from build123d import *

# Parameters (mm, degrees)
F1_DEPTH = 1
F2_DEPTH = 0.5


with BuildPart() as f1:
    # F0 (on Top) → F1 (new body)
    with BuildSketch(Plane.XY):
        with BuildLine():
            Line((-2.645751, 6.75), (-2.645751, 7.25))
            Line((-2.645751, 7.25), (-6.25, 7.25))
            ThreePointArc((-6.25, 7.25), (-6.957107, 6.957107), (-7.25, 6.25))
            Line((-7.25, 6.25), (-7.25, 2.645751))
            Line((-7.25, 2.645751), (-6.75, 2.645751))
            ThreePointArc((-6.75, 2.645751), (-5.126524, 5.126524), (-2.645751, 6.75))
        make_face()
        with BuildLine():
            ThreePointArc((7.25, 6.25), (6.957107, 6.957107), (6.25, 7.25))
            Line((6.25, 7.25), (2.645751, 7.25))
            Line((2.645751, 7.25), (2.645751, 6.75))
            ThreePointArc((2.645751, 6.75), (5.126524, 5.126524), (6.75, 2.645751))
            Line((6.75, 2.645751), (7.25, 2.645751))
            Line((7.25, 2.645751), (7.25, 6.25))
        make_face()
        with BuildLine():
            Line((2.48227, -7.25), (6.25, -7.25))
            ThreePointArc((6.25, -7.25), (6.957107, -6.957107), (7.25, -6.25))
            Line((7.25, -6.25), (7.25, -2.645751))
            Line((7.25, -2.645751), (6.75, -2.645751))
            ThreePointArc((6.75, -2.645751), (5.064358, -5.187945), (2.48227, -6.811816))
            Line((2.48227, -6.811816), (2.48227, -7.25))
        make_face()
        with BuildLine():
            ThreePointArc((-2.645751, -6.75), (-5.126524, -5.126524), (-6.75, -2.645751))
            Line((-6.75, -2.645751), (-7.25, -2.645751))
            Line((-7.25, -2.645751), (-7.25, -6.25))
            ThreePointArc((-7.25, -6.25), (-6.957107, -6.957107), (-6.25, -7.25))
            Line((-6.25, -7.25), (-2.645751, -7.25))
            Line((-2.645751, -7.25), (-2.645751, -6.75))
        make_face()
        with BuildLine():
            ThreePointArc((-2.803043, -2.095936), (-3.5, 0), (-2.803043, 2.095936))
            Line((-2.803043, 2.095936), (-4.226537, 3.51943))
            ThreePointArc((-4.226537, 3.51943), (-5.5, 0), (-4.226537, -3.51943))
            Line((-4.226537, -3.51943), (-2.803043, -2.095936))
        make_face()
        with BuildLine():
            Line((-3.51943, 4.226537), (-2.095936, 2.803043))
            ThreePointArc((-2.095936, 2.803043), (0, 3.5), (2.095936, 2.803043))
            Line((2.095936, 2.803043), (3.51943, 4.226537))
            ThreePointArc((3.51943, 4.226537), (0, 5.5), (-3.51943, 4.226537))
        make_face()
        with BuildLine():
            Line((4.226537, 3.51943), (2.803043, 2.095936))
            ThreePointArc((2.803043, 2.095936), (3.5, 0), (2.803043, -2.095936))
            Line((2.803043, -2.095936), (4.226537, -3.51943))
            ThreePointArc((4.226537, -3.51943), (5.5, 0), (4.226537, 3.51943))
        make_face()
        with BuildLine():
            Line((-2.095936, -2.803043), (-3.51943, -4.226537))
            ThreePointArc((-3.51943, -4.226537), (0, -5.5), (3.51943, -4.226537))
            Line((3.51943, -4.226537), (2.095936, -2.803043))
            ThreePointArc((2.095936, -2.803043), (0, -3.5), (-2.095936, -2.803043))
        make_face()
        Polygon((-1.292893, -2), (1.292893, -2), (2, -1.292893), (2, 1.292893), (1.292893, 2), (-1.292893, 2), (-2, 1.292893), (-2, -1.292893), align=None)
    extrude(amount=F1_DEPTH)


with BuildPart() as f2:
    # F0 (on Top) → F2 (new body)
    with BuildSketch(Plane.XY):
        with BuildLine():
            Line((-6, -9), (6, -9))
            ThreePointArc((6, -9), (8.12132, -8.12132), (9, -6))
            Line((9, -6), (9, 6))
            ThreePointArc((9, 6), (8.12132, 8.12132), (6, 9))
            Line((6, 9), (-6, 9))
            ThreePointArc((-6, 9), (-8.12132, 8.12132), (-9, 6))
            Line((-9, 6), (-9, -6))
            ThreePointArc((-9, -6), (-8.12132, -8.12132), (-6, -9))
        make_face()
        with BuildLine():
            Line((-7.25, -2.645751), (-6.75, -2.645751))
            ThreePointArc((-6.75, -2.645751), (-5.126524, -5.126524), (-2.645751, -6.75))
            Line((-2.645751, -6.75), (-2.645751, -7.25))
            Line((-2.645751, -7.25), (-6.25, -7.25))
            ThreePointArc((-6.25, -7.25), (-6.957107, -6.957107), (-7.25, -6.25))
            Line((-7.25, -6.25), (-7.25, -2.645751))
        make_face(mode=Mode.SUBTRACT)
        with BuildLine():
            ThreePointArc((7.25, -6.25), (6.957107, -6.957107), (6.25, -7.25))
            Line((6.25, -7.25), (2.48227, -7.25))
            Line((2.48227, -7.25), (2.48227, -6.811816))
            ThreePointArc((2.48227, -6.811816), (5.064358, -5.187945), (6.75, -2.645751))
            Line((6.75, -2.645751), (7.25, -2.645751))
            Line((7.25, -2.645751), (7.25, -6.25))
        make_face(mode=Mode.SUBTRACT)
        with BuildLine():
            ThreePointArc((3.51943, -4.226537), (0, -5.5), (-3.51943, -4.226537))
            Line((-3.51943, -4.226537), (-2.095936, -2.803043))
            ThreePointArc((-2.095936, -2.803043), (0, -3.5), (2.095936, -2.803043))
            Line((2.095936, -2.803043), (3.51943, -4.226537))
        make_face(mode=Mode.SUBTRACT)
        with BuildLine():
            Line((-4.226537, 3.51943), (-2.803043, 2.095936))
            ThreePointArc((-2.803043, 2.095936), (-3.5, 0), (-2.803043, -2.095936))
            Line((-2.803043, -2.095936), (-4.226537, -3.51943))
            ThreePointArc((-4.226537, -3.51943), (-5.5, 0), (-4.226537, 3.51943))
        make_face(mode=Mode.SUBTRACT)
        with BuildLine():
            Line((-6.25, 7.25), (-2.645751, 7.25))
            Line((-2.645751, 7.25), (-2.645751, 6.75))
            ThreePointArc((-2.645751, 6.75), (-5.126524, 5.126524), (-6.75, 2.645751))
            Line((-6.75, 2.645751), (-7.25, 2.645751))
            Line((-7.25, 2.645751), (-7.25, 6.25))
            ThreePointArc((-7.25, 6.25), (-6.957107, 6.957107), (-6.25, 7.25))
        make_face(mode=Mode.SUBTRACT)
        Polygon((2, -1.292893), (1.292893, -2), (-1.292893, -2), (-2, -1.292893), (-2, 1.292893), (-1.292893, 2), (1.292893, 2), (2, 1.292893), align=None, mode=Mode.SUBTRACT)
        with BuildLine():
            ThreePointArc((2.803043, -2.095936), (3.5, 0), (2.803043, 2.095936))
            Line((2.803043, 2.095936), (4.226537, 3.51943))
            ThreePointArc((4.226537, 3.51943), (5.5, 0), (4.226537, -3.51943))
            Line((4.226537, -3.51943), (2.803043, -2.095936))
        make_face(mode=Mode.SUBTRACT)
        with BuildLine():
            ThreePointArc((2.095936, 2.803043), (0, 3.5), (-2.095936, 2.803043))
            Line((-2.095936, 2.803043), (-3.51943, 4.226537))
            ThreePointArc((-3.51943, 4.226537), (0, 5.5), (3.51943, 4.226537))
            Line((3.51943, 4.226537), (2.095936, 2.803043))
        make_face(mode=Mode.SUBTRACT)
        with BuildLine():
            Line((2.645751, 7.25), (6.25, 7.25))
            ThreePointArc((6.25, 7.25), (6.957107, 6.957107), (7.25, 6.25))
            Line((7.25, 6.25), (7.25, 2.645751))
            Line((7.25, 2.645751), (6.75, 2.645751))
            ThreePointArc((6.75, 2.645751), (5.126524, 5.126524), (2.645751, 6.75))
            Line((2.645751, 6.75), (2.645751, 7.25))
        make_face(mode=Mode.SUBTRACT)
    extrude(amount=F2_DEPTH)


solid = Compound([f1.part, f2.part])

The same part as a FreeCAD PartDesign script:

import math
import FreeCAD as App
import Part
import Sketcher
from FreeCAD import Vector
Q = App.Units.Quantity

doc = App.newDocument("Part")
body = doc.addObject("PartDesign::Body", "Body")
body.AllowCompound = True

sketch1 = body.newObject("Sketcher::SketchObject", "Sketch")
sketch1.AttachmentSupport = (doc.getObject("XY_Plane"), [""])
sketch1.MapMode = "FlatFace"
sketch1.addGeometry([
    Part.LineSegment(Vector(-2.65, 6.75, 0), Vector(-2.65, 7.25, 0)),
    Part.LineSegment(Vector(-2.65, 7.25, 0), Vector(-6.25, 7.25, 0)),
    Part.ArcOfCircle(Part.Circle(Vector(-6.25, 6.25, 0), Vector(0, 0, 1), 1), math.radians(90), math.radians(180)),
    Part.LineSegment(Vector(-7.25, 6.25, 0), Vector(-7.25, 2.65, 0)),
    Part.LineSegment(Vector(-7.25, 2.65, 0), Vector(-6.75, 2.65, 0)),
    Part.ArcOfCircle(Part.Circle(Vector(0, 0, 0), Vector(0, 0, 1), 7.25), math.radians(111), math.radians(159)),
    Part.ArcOfCircle(Part.Circle(Vector(6.25, 6.25, 0), Vector(0, 0, 1), 1), math.radians(0), math.radians(90)),
    Part.LineSegment(Vector(6.25, 7.25, 0), Vector(2.65, 7.25, 0)),
    Part.LineSegment(Vector(2.65, 7.25, 0), Vector(2.65, 6.75, 0)),
    Part.ArcOfCircle(Part.Circle(Vector(0, 0, 0), Vector(0, 0, 1), 7.25), math.radians(21), math.radians(69)),
    Part.LineSegment(Vector(6.75, 2.65, 0), Vector(7.25, 2.65, 0)),
    Part.LineSegment(Vector(7.25, 2.65, 0), Vector(7.25, 6.25, 0)),
    Part.LineSegment(Vector(2.48, -7.25, 0), Vector(6.25, -7.25, 0)),
    Part.ArcOfCircle(Part.Circle(Vector(6.25, -6.25, 0), Vector(0, 0, 1), 1), math.radians(-90), math.radians(0)),
    Part.LineSegment(Vector(7.25, -6.25, 0), Vector(7.25, -2.65, 0)),
    Part.LineSegment(Vector(7.25, -2.65, 0), Vector(6.75, -2.65, 0)),
    Part.ArcOfCircle(Part.Circle(Vector(0, 0, 0), Vector(0, 0, 1), 7.25), math.radians(-70), math.radians(-21)),
    Part.LineSegment(Vector(2.48, -6.81, 0), Vector(2.48, -7.25, 0)),
    Part.ArcOfCircle(Part.Circle(Vector(0, 0, 0), Vector(0, 0, 1), 7.25), math.radians(-159), math.radians(-111)),
    Part.LineSegment(Vector(-6.75, -2.65, 0), Vector(-7.25, -2.65, 0)),
    Part.LineSegment(Vector(-7.25, -2.65, 0), Vector(-7.25, -6.25, 0)),
    Part.ArcOfCircle(Part.Circle(Vector(-6.25, -6.25, 0), Vector(0, 0, 1), 1), math.radians(180), math.radians(270)),
    Part.LineSegment(Vector(-6.25, -7.25, 0), Vector(-2.65, -7.25, 0)),
    Part.LineSegment(Vector(-2.65, -7.25, 0), Vector(-2.65, -6.75, 0)),
    Part.ArcOfCircle(Part.Circle(Vector(0, 0, 0), Vector(0, 0, 1), 3.5), math.radians(143), math.radians(217)),
    Part.LineSegment(Vector(-2.8, 2.1, 0), Vector(-4.23, 3.52, 0)),
    Part.ArcOfCircle(Part.Circle(Vector(0, 0, 0), Vector(0, 0, 1), 5.5), math.radians(140), math.radians(220)),
    Part.LineSegment(Vector(-4.23, -3.52, 0), Vector(-2.8, -2.1, 0)),
    Part.LineSegment(Vector(-3.52, 4.23, 0), Vector(-2.1, 2.8, 0)),
    Part.ArcOfCircle(Part.Circle(Vector(0, 0, 0), Vector(0, 0, 1), 3.5), math.radians(53), math.radians(127)),
    Part.LineSegment(Vector(2.1, 2.8, 0), Vector(3.52, 4.23, 0)),
    Part.ArcOfCircle(Part.Circle(Vector(0, 0, 0), Vector(0, 0, 1), 5.5), math.radians(50), math.radians(130)),
    Part.LineSegment(Vector(4.23, 3.52, 0), Vector(2.8, 2.1, 0)),
    Part.ArcOfCircle(Part.Circle(Vector(0, 0, 0), Vector(0, 0, 1), 3.5), math.radians(-37), math.radians(37)),
    Part.LineSegment(Vector(2.8, -2.1, 0), Vector(4.23, -3.52, 0)),
    Part.ArcOfCircle(Part.Circle(Vector(0, 0, 0), Vector(0, 0, 1), 5.5), math.radians(-40), math.radians(40)),
    Part.LineSegment(Vector(-2.1, -2.8, 0), Vector(-3.52, -4.23, 0)),
    Part.ArcOfCircle(Part.Circle(Vector(0, 0, 0), Vector(0, 0, 1), 5.5), math.radians(-130), math.radians(-50)),
    Part.LineSegment(Vector(3.52, -4.23, 0), Vector(2.1, -2.8, 0)),
    Part.ArcOfCircle(Part.Circle(Vector(0, 0, 0), Vector(0, 0, 1), 3.5), math.radians(-127), math.radians(-53)),
    Part.LineSegment(Vector(-1.29, -2, 0), Vector(1.29, -2, 0)),
    Part.LineSegment(Vector(1.29, -2, 0), Vector(2, -1.29, 0)),
    Part.LineSegment(Vector(2, -1.29, 0), Vector(2, 1.29, 0)),
    Part.LineSegment(Vector(2, 1.29, 0), Vector(1.29, 2, 0)),
    Part.LineSegment(Vector(1.29, 2, 0), Vector(-1.29, 2, 0)),
    Part.LineSegment(Vector(-1.29, 2, 0), Vector(-2, 1.29, 0)),
    Part.LineSegment(Vector(-2, 1.29, 0), Vector(-2, -1.29, 0)),
    Part.LineSegment(Vector(-2, -1.29, 0), Vector(-1.29, -2, 0)),
], False)
sketch1.addConstraint([
    Sketcher.Constraint("Coincident", 0, 2, 1, 1),
    Sketcher.Constraint("Tangent", 1, 2, 2, 1),
    Sketcher.Constraint("Tangent", 2, 2, 3, 1),
    Sketcher.Constraint("Coincident", 3, 2, 4, 1),
    Sketcher.Constraint("Coincident", 4, 2, 5, 2),
    Sketcher.Constraint("Coincident", 5, 1, 0, 1),
    Sketcher.Constraint("Tangent", 6, 2, 7, 1),
    Sketcher.Constraint("Coincident", 7, 2, 8, 1),
    Sketcher.Constraint("Coincident", 8, 2, 9, 2),
    Sketcher.Constraint("Coincident", 9, 1, 10, 1),
    Sketcher.Constraint("Coincident", 10, 2, 11, 1),
    Sketcher.Constraint("Tangent", 11, 2, 6, 1),
    Sketcher.Constraint("Tangent", 12, 2, 13, 1),
    Sketcher.Constraint("Tangent", 13, 2, 14, 1),
    Sketcher.Constraint("Coincident", 14, 2, 15, 1),
    Sketcher.Constraint("Coincident", 15, 2, 16, 2),
    Sketcher.Constraint("Coincident", 16, 1, 17, 1),
    Sketcher.Constraint("Coincident", 17, 2, 12, 1),
    Sketcher.Constraint("Coincident", 18, 1, 19, 1),
    Sketcher.Constraint("Coincident", 19, 2, 20, 1),
    Sketcher.Constraint("Tangent", 20, 2, 21, 1),
    Sketcher.Constraint("Tangent", 21, 2, 22, 1),
    Sketcher.Constraint("Coincident", 22, 2, 23, 1),
    Sketcher.Constraint("Coincident", 23, 2, 18, 2),
    Sketcher.Constraint("Coincident", 24, 1, 25, 1),
    Sketcher.Constraint("Coincident", 25, 2, 26, 1),
    Sketcher.Constraint("Coincident", 26, 2, 27, 1),
    Sketcher.Constraint("Coincident", 27, 2, 24, 2),
    Sketcher.Constraint("Coincident", 28, 2, 29, 2),
    Sketcher.Constraint("Coincident", 29, 1, 30, 1),
    Sketcher.Constraint("Coincident", 30, 2, 31, 1),
    Sketcher.Constraint("Coincident", 31, 2, 28, 1),
    Sketcher.Constraint("Coincident", 32, 2, 33, 2),
    Sketcher.Constraint("Coincident", 33, 1, 34, 1),
    Sketcher.Constraint("Coincident", 34, 2, 35, 1),
    Sketcher.Constraint("Coincident", 35, 2, 32, 1),
    Sketcher.Constraint("Coincident", 36, 2, 37, 1),
    Sketcher.Constraint("Coincident", 37, 2, 38, 1),
    Sketcher.Constraint("Coincident", 38, 2, 39, 2),
    Sketcher.Constraint("Coincident", 39, 1, 36, 1),
    Sketcher.Constraint("Coincident", 40, 2, 41, 1),
    Sketcher.Constraint("Coincident", 41, 2, 42, 1),
    Sketcher.Constraint("Coincident", 42, 2, 43, 1),
    Sketcher.Constraint("Coincident", 43, 2, 44, 1),
    Sketcher.Constraint("Coincident", 44, 2, 45, 1),
    Sketcher.Constraint("Coincident", 45, 2, 46, 1),
    Sketcher.Constraint("Coincident", 46, 2, 47, 1),
    Sketcher.Constraint("Coincident", 47, 2, 40, 1),
    Sketcher.Constraint("Vertical", 0),
    Sketcher.Constraint("Horizontal", 1),
    Sketcher.Constraint("Vertical", 3),
    Sketcher.Constraint("Horizontal", 4),
    Sketcher.Constraint("Horizontal", 7),
    Sketcher.Constraint("Vertical", 8),
    Sketcher.Constraint("Horizontal", 10),
    Sketcher.Constraint("Vertical", 11),
    Sketcher.Constraint("Horizontal", 12),
    Sketcher.Constraint("Vertical", 14),
    Sketcher.Constraint("Horizontal", 15),
    Sketcher.Constraint("Vertical", 17),
    Sketcher.Constraint("Horizontal", 19),
    Sketcher.Constraint("Vertical", 20),
    Sketcher.Constraint("Horizontal", 22),
    Sketcher.Constraint("Vertical", 23),
    Sketcher.Constraint("Horizontal", 40),
    Sketcher.Constraint("Vertical", 42),
    Sketcher.Constraint("Horizontal", 44),
    Sketcher.Constraint("Vertical", 46),
    Sketcher.Constraint("Coincident", 5, 3, -1, 1),
    Sketcher.Constraint("Coincident", 9, 3, -1, 1),
    Sketcher.Constraint("Coincident", 16, 3, -1, 1),
    Sketcher.Constraint("Coincident", 18, 3, -1, 1),
    Sketcher.Constraint("Coincident", 24, 3, -1, 1),
    Sketcher.Constraint("Coincident", 26, 3, -1, 1),
    Sketcher.Constraint("Coincident", 29, 3, -1, 1),
    Sketcher.Constraint("Coincident", 31, 3, -1, 1),
    Sketcher.Constraint("Coincident", 33, 3, -1, 1),
    Sketcher.Constraint("Coincident", 35, 3, -1, 1),
    Sketcher.Constraint("Coincident", 37, 3, -1, 1),
    Sketcher.Constraint("Coincident", 39, 3, -1, 1),
    Sketcher.Constraint("Equal", 2, 6),
    Sketcher.Constraint("Equal", 5, 9),
    Sketcher.Constraint("Equal", 6, 13),
    Sketcher.Constraint("Equal", 9, 18),
    Sketcher.Constraint("Equal", 13, 21),
    Sketcher.Constraint("Equal", 24, 29),
    Sketcher.Constraint("Equal", 26, 31),
    Sketcher.Constraint("Equal", 29, 33),
    Sketcher.Constraint("Equal", 31, 35),
    Sketcher.Constraint("Equal", 35, 37),
    Sketcher.Constraint("Equal", 33, 39),
    Sketcher.Constraint("Symmetric", 2, 3, 13, 3, -1, 1),
    Sketcher.Constraint("Symmetric", 6, 3, 21, 3, -1, 1),
    Sketcher.Constraint("Symmetric", 4, 2, 15, 2, -1, 1),
    Sketcher.Constraint("Symmetric", 40, 2, 44, 2, -1, 1),
    Sketcher.Constraint("Symmetric", 41, 2, 45, 2, -1, 1),
    Sketcher.Constraint("Symmetric", 2, 3, 6, 3, -2),
    Sketcher.Constraint("Perpendicular", 25, 27),
    Sketcher.Constraint("Perpendicular", 27, 28),
    Sketcher.Constraint("Perpendicular", 28, 30),
    Sketcher.Constraint("Parallel", 30, 32),
    Sketcher.Constraint("Perpendicular", 32, 34),
    Sketcher.Constraint("Perpendicular", 34, 36),
    Sketcher.Constraint("Perpendicular", 36, 38),
    Sketcher.Constraint("Perpendicular", 38, 41),
    Sketcher.Constraint("Perpendicular", 41, 43),
    Sketcher.Constraint("Perpendicular", 45, 47),
    Sketcher.Constraint("Horizontal", 5, 1, 8, 2),
    Sketcher.Constraint("Horizontal", 4, 2, 9, 1),
    Sketcher.Constraint("Horizontal", 15, 2, 18, 1),
    Sketcher.Constraint("Horizontal", 28, 2, 29, 1),
    Sketcher.Constraint("Horizontal", 30, 2, 31, 2),
    Sketcher.Constraint("Horizontal", 24, 1, 32, 2),
    Sketcher.Constraint("Horizontal", 27, 2, 33, 1),
    Sketcher.Constraint("Horizontal", 36, 2, 37, 2),
    Sketcher.Constraint("Horizontal", 42, 2, 45, 2),
    Sketcher.Constraint("Horizontal", 41, 2, 46, 2),
    Sketcher.Constraint("Vertical", 5, 1, 22, 2),
    Sketcher.Constraint("Vertical", 25, 2, 26, 2),
    Sketcher.Constraint("Vertical", 31, 2, 36, 2),
    Sketcher.Constraint("Equal", 19, 0),
    Sketcher.Constraint("Equal", 22, 3),
    Sketcher.Constraint("Equal", 44, 42),
    Sketcher.Constraint("Equal", 27, 28),
    Sketcher.Constraint("Radius", 2, Q("0.999999 mm")),
    Sketcher.Constraint("Radius", 24, Q("3.499998 mm")),
    Sketcher.Constraint("Radius", 26, Q("5.500001 mm")),
    Sketcher.Constraint("Radius", 5, Q("7.250001 mm")),
    Sketcher.Constraint("Distance", 41, Q("1 mm")),
    Sketcher.Constraint("DistanceX", 4, 1, 4, 2, Q("0.5 mm")),
    Sketcher.Constraint("DistanceY", 40, 2, -1, 1, Q("2 mm")),
    Sketcher.Constraint("DistanceX", 2, 3, -1, 1, Q("6.250001 mm")),
    Sketcher.Constraint("DistanceX", 12, 1, 12, 2, Q("3.76773 mm")),
    Sketcher.Constraint("DistanceY", -1, 1, 25, 2, Q("3.51943 mm")),
])
pad1 = body.newObject("PartDesign::Pad", "Pad")
pad1.Profile = sketch1
pad1.Length = 1
body2 = doc.addObject("PartDesign::Body", "Body001")

sketch2 = body2.newObject("Sketcher::SketchObject", "Sketch001")
sketch2.AttachmentSupport = (doc.getObject("XY_Plane001"), [""])
sketch2.MapMode = "FlatFace"
sketch2.addGeometry([
    Part.LineSegment(Vector(-6, -9, 0), Vector(6, -9, 0)),
    Part.ArcOfCircle(Part.Circle(Vector(6, -6, 0), Vector(0, 0, 1), 3), math.radians(-90), math.radians(0)),
    Part.LineSegment(Vector(9, -6, 0), Vector(9, 6, 0)),
    Part.ArcOfCircle(Part.Circle(Vector(6, 6, 0), Vector(0, 0, 1), 3), math.radians(0), math.radians(90)),
    Part.LineSegment(Vector(6, 9, 0), Vector(-6, 9, 0)),
    Part.ArcOfCircle(Part.Circle(Vector(-6, 6, 0), Vector(0, 0, 1), 3), math.radians(90), math.radians(180)),
    Part.LineSegment(Vector(-9, 6, 0), Vector(-9, -6, 0)),
    Part.ArcOfCircle(Part.Circle(Vector(-6, -6, 0), Vector(0, 0, 1), 3), math.radians(-180), math.radians(-90)),
    Part.LineSegment(Vector(-7.25, -6.25, 0), Vector(-7.25, -2.65, 0)),
    Part.LineSegment(Vector(-7.25, -2.65, 0), Vector(-6.75, -2.65, 0)),
    Part.ArcOfCircle(Part.Circle(Vector(0, 0, 0), Vector(0, 0, 1), 7.25), math.radians(-159), math.radians(-111)),
    Part.LineSegment(Vector(-2.65, -6.75, 0), Vector(-2.65, -7.25, 0)),
    Part.LineSegment(Vector(-2.65, -7.25, 0), Vector(-6.25, -7.25, 0)),
    Part.ArcOfCircle(Part.Circle(Vector(-6.25, -6.25, 0), Vector(0, 0, 1), 1), math.radians(180), math.radians(270)),
    Part.LineSegment(Vector(2.1, -2.8, 0), Vector(3.52, -4.23, 0)),
    Part.ArcOfCircle(Part.Circle(Vector(0, 0, 0), Vector(0, 0, 1), 5.5), math.radians(-130), math.radians(-50)),
    Part.LineSegment(Vector(-3.52, -4.23, 0), Vector(-2.1, -2.8, 0)),
    Part.ArcOfCircle(Part.Circle(Vector(0, 0, 0), Vector(0, 0, 1), 3.5), math.radians(-127), math.radians(-53)),
    Part.LineSegment(Vector(7.25, -2.65, 0), Vector(7.25, -6.25, 0)),
    Part.ArcOfCircle(Part.Circle(Vector(6.25, -6.25, 0), Vector(0, 0, 1), 1), math.radians(-90), math.radians(0)),
    Part.LineSegment(Vector(6.25, -7.25, 0), Vector(2.48, -7.25, 0)),
    Part.LineSegment(Vector(2.48, -7.25, 0), Vector(2.48, -6.81, 0)),
    Part.ArcOfCircle(Part.Circle(Vector(0, 0, 0), Vector(0, 0, 1), 7.25), math.radians(-70), math.radians(-21)),
    Part.LineSegment(Vector(6.75, -2.65, 0), Vector(7.25, -2.65, 0)),
    Part.ArcOfCircle(Part.Circle(Vector(0, 0, 0), Vector(0, 0, 1), 5.5), math.radians(140), math.radians(220)),
    Part.LineSegment(Vector(-4.23, 3.52, 0), Vector(-2.8, 2.1, 0)),
    Part.ArcOfCircle(Part.Circle(Vector(0, 0, 0), Vector(0, 0, 1), 3.5), math.radians(143), math.radians(217)),
    Part.LineSegment(Vector(-2.8, -2.1, 0), Vector(-4.23, -3.52, 0)),
    Part.ArcOfCircle(Part.Circle(Vector(-6.25, 6.25, 0), Vector(0, 0, 1), 1), math.radians(90), math.radians(180)),
    Part.LineSegment(Vector(-6.25, 7.25, 0), Vector(-2.65, 7.25, 0)),
    Part.LineSegment(Vector(-2.65, 7.25, 0), Vector(-2.65, 6.75, 0)),
    Part.ArcOfCircle(Part.Circle(Vector(0, 0, 0), Vector(0, 0, 1), 7.25), math.radians(111), math.radians(159)),
    Part.LineSegment(Vector(-6.75, 2.65, 0), Vector(-7.25, 2.65, 0)),
    Part.LineSegment(Vector(-7.25, 2.65, 0), Vector(-7.25, 6.25, 0)),
    Part.LineSegment(Vector(2, 1.29, 0), Vector(2, -1.29, 0)),
    Part.LineSegment(Vector(2, -1.29, 0), Vector(1.29, -2, 0)),
    Part.LineSegment(Vector(1.29, -2, 0), Vector(-1.29, -2, 0)),
    Part.LineSegment(Vector(-1.29, -2, 0), Vector(-2, -1.29, 0)),
    Part.LineSegment(Vector(-2, -1.29, 0), Vector(-2, 1.29, 0)),
    Part.LineSegment(Vector(-2, 1.29, 0), Vector(-1.29, 2, 0)),
    Part.LineSegment(Vector(-1.29, 2, 0), Vector(1.29, 2, 0)),
    Part.LineSegment(Vector(1.29, 2, 0), Vector(2, 1.29, 0)),
    Part.LineSegment(Vector(4.23, -3.52, 0), Vector(2.8, -2.1, 0)),
    Part.ArcOfCircle(Part.Circle(Vector(0, 0, 0), Vector(0, 0, 1), 3.5), math.radians(-37), math.radians(37)),
    Part.LineSegment(Vector(2.8, 2.1, 0), Vector(4.23, 3.52, 0)),
    Part.ArcOfCircle(Part.Circle(Vector(0, 0, 0), Vector(0, 0, 1), 5.5), math.radians(-40), math.radians(40)),
    Part.LineSegment(Vector(3.52, 4.23, 0), Vector(2.1, 2.8, 0)),
    Part.ArcOfCircle(Part.Circle(Vector(0, 0, 0), Vector(0, 0, 1), 3.5), math.radians(53), math.radians(127)),
    Part.LineSegment(Vector(-2.1, 2.8, 0), Vector(-3.52, 4.23, 0)),
    Part.ArcOfCircle(Part.Circle(Vector(0, 0, 0), Vector(0, 0, 1), 5.5), math.radians(50), math.radians(130)),
    Part.LineSegment(Vector(2.65, 6.75, 0), Vector(2.65, 7.25, 0)),
    Part.LineSegment(Vector(2.65, 7.25, 0), Vector(6.25, 7.25, 0)),
    Part.ArcOfCircle(Part.Circle(Vector(6.25, 6.25, 0), Vector(0, 0, 1), 1), math.radians(0), math.radians(90)),
    Part.LineSegment(Vector(7.25, 6.25, 0), Vector(7.25, 2.65, 0)),
    Part.LineSegment(Vector(7.25, 2.65, 0), Vector(6.75, 2.65, 0)),
    Part.ArcOfCircle(Part.Circle(Vector(0, 0, 0), Vector(0, 0, 1), 7.25), math.radians(21), math.radians(69)),
], False)
sketch2.addConstraint([
    Sketcher.Constraint("Tangent", 0, 2, 1, 1),
    Sketcher.Constraint("Tangent", 1, 2, 2, 1),
    Sketcher.Constraint("Tangent", 2, 2, 3, 1),
    Sketcher.Constraint("Tangent", 3, 2, 4, 1),
    Sketcher.Constraint("Tangent", 4, 2, 5, 1),
    Sketcher.Constraint("Tangent", 5, 2, 6, 1),
    Sketcher.Constraint("Tangent", 6, 2, 7, 1),
    Sketcher.Constraint("Tangent", 7, 2, 0, 1),
    Sketcher.Constraint("Coincident", 8, 2, 9, 1),
    Sketcher.Constraint("Coincident", 9, 2, 10, 1),
    Sketcher.Constraint("Coincident", 10, 2, 11, 1),
    Sketcher.Constraint("Coincident", 11, 2, 12, 1),
    Sketcher.Constraint("Tangent", 12, 2, 13, 2),
    Sketcher.Constraint("Tangent", 13, 1, 8, 1),
    Sketcher.Constraint("Coincident", 14, 2, 15, 2),
    Sketcher.Constraint("Coincident", 15, 1, 16, 1),
    Sketcher.Constraint("Coincident", 16, 2, 17, 1),
    Sketcher.Constraint("Coincident", 17, 2, 14, 1),
    Sketcher.Constraint("Tangent", 18, 2, 19, 2),
    Sketcher.Constraint("Tangent", 19, 1, 20, 1),
    Sketcher.Constraint("Coincident", 20, 2, 21, 1),
    Sketcher.Constraint("Coincident", 21, 2, 22, 1),
    Sketcher.Constraint("Coincident", 22, 2, 23, 1),
    Sketcher.Constraint("Coincident", 23, 2, 18, 1),
    Sketcher.Constraint("Coincident", 24, 1, 25, 1),
    Sketcher.Constraint("Coincident", 25, 2, 26, 1),
    Sketcher.Constraint("Coincident", 26, 2, 27, 1),
    Sketcher.Constraint("Coincident", 27, 2, 24, 2),
    Sketcher.Constraint("Tangent", 28, 1, 29, 1),
    Sketcher.Constraint("Coincident", 29, 2, 30, 1),
    Sketcher.Constraint("Coincident", 30, 2, 31, 1),
    Sketcher.Constraint("Coincident", 31, 2, 32, 1),
    Sketcher.Constraint("Coincident", 32, 2, 33, 1),
    Sketcher.Constraint("Tangent", 33, 2, 28, 2),
    Sketcher.Constraint("Coincident", 34, 2, 35, 1),
    Sketcher.Constraint("Coincident", 35, 2, 36, 1),
    Sketcher.Constraint("Coincident", 36, 2, 37, 1),
    Sketcher.Constraint("Coincident", 37, 2, 38, 1),
    Sketcher.Constraint("Coincident", 38, 2, 39, 1),
    Sketcher.Constraint("Coincident", 39, 2, 40, 1),
    Sketcher.Constraint("Coincident", 40, 2, 41, 1),
    Sketcher.Constraint("Coincident", 41, 2, 34, 1),
    Sketcher.Constraint("Coincident", 42, 2, 43, 1),
    Sketcher.Constraint("Coincident", 43, 2, 44, 1),
    Sketcher.Constraint("Coincident", 44, 2, 45, 2),
    Sketcher.Constraint("Coincident", 45, 1, 42, 1),
    Sketcher.Constraint("Coincident", 46, 2, 47, 1),
    Sketcher.Constraint("Coincident", 47, 2, 48, 1),
    Sketcher.Constraint("Coincident", 48, 2, 49, 2),
    Sketcher.Constraint("Coincident", 49, 1, 46, 1),
    Sketcher.Constraint("Coincident", 50, 2, 51, 1),
    Sketcher.Constraint("Tangent", 51, 2, 52, 2),
    Sketcher.Constraint("Tangent", 52, 1, 53, 1),
    Sketcher.Constraint("Coincident", 53, 2, 54, 1),
    Sketcher.Constraint("Coincident", 54, 2, 55, 1),
    Sketcher.Constraint("Coincident", 55, 2, 50, 1),
    Sketcher.Constraint("Horizontal", 0),
    Sketcher.Constraint("Vertical", 2),
    Sketcher.Constraint("Horizontal", 4),
    Sketcher.Constraint("Vertical", 6),
    Sketcher.Constraint("Vertical", 8),
    Sketcher.Constraint("Horizontal", 9),
    Sketcher.Constraint("Vertical", 11),
    Sketcher.Constraint("Horizontal", 12),
    Sketcher.Constraint("Vertical", 18),
    Sketcher.Constraint("Horizontal", 20),
    Sketcher.Constraint("Vertical", 21),
    Sketcher.Constraint("Horizontal", 23),
    Sketcher.Constraint("Horizontal", 29),
    Sketcher.Constraint("Vertical", 30),
    Sketcher.Constraint("Horizontal", 32),
    Sketcher.Constraint("Vertical", 33),
    Sketcher.Constraint("Vertical", 34),
    Sketcher.Constraint("Horizontal", 36),
    Sketcher.Constraint("Vertical", 38),
    Sketcher.Constraint("Horizontal", 40),
    Sketcher.Constraint("Vertical", 50),
    Sketcher.Constraint("Horizontal", 51),
    Sketcher.Constraint("Vertical", 53),
    Sketcher.Constraint("Horizontal", 54),
    Sketcher.Constraint("Coincident", 10, 3, -1, 1),
    Sketcher.Constraint("Coincident", 15, 3, -1, 1),
    Sketcher.Constraint("Coincident", 17, 3, -1, 1),
    Sketcher.Constraint("Coincident", 22, 3, -1, 1),
    Sketcher.Constraint("Coincident", 24, 3, -1, 1),
    Sketcher.Constraint("Coincident", 26, 3, -1, 1),
    Sketcher.Constraint("Coincident", 31, 3, -1, 1),
    Sketcher.Constraint("Coincident", 43, 3, -1, 1),
    Sketcher.Constraint("Coincident", 45, 3, -1, 1),
    Sketcher.Constraint("Coincident", 47, 3, -1, 1),
    Sketcher.Constraint("Coincident", 49, 3, -1, 1),
    Sketcher.Constraint("Coincident", 55, 3, -1, 1),
    Sketcher.Constraint("Equal", 1, 3),
    Sketcher.Constraint("Equal", 3, 5),
    Sketcher.Constraint("Equal", 5, 7),
    Sketcher.Constraint("Equal", 13, 19),
    Sketcher.Constraint("Equal", 15, 24),
    Sketcher.Constraint("Equal", 17, 26),
    Sketcher.Constraint("Equal", 19, 28),
    Sketcher.Constraint("Equal", 10, 31),
    Sketcher.Constraint("Equal", 26, 43),
    Sketcher.Constraint("Equal", 24, 45),
    Sketcher.Constraint("Equal", 43, 47),
    Sketcher.Constraint("Equal", 45, 49),
    Sketcher.Constraint("Equal", 28, 52),
    Sketcher.Constraint("Equal", 31, 55),
    Sketcher.Constraint("Symmetric", 1, 3, 5, 3, -1, 1),
    Sketcher.Constraint("Symmetric", 19, 3, 28, 3, -1, 1),
    Sketcher.Constraint("Symmetric", 13, 3, 52, 3, -1, 1),
    Sketcher.Constraint("Symmetric", 22, 2, 31, 2, -1, 1),
    Sketcher.Constraint("Symmetric", 34, 2, 38, 2, -1, 1),
    Sketcher.Constraint("Symmetric", 35, 2, 39, 2, -1, 1),
    Sketcher.Constraint("Symmetric", 13, 3, 19, 3, -2),
    Sketcher.Constraint("Perpendicular", 14, 16),
    Sketcher.Constraint("Perpendicular", 16, 25),
    Sketcher.Constraint("Perpendicular", 25, 27),
    Sketcher.Constraint("Parallel", 27, 35),
    Sketcher.Constraint("Perpendicular", 35, 37),
    Sketcher.Constraint("Perpendicular", 39, 41),
    Sketcher.Constraint("Parallel", 41, 42),
    Sketcher.Constraint("Perpendicular", 42, 44),
    Sketcher.Constraint("Parallel", 44, 46),
    Sketcher.Constraint("Perpendicular", 46, 48),
    Sketcher.Constraint("Horizontal", 14, 2, 15, 1),
    Sketcher.Constraint("Horizontal", 16, 2, 17, 2),
    Sketcher.Constraint("Horizontal", 9, 2, 22, 2),
    Sketcher.Constraint("Horizontal", 34, 2, 37, 2),
    Sketcher.Constraint("Horizontal", 38, 2, 41, 2),
    Sketcher.Constraint("Horizontal", 26, 2, 42, 2),
    Sketcher.Constraint("Horizontal", 25, 2, 43, 2),
    Sketcher.Constraint("Horizontal", 46, 2, 47, 2),
    Sketcher.Constraint("Horizontal", 32, 2, 53, 2),
    Sketcher.Constraint("Horizontal", 30, 2, 55, 2),
    Sketcher.Constraint("Vertical", 25, 2, 26, 2),
    Sketcher.Constraint("Vertical", 11, 2, 29, 2),
    Sketcher.Constraint("Vertical", 17, 2, 46, 2),
    Sketcher.Constraint("Equal", 4, 2),
    Sketcher.Constraint("Equal", 51, 8),
    Sketcher.Constraint("Equal", 54, 11),
    Sketcher.Constraint("Equal", 40, 34),
    Sketcher.Constraint("Equal", 16, 25),
    Sketcher.Constraint("Radius", 1, Q("3.000001 mm")),
    Sketcher.Constraint("Radius", 13, Q("0.999999 mm")),
    Sketcher.Constraint("Radius", 15, Q("5.500001 mm")),
    Sketcher.Constraint("Radius", 17, Q("3.499998 mm")),
    Sketcher.Constraint("DistanceX", 0, 1, 0, 2, Q("12 mm")),
    Sketcher.Constraint("Radius", 10, Q("7.250001 mm")),
    Sketcher.Constraint("Distance", 35, Q("1 mm")),
    Sketcher.Constraint("DistanceX", 9, 1, 9, 2, Q("0.5 mm")),
    Sketcher.Constraint("DistanceX", -1, 1, 34, 2, Q("2 mm")),
    Sketcher.Constraint("DistanceX", 13, 3, -1, 1, Q("6.250001 mm")),
    Sketcher.Constraint("DistanceX", 20, 2, 20, 1, Q("3.76773 mm")),
    Sketcher.Constraint("DistanceX", -1, 1, 14, 2, Q("3.51943 mm")),
])
pad2 = body2.newObject("PartDesign::Pad", "Pad001")
pad2.Profile = sketch2
pad2.Length = 0.5

doc.recompute()
